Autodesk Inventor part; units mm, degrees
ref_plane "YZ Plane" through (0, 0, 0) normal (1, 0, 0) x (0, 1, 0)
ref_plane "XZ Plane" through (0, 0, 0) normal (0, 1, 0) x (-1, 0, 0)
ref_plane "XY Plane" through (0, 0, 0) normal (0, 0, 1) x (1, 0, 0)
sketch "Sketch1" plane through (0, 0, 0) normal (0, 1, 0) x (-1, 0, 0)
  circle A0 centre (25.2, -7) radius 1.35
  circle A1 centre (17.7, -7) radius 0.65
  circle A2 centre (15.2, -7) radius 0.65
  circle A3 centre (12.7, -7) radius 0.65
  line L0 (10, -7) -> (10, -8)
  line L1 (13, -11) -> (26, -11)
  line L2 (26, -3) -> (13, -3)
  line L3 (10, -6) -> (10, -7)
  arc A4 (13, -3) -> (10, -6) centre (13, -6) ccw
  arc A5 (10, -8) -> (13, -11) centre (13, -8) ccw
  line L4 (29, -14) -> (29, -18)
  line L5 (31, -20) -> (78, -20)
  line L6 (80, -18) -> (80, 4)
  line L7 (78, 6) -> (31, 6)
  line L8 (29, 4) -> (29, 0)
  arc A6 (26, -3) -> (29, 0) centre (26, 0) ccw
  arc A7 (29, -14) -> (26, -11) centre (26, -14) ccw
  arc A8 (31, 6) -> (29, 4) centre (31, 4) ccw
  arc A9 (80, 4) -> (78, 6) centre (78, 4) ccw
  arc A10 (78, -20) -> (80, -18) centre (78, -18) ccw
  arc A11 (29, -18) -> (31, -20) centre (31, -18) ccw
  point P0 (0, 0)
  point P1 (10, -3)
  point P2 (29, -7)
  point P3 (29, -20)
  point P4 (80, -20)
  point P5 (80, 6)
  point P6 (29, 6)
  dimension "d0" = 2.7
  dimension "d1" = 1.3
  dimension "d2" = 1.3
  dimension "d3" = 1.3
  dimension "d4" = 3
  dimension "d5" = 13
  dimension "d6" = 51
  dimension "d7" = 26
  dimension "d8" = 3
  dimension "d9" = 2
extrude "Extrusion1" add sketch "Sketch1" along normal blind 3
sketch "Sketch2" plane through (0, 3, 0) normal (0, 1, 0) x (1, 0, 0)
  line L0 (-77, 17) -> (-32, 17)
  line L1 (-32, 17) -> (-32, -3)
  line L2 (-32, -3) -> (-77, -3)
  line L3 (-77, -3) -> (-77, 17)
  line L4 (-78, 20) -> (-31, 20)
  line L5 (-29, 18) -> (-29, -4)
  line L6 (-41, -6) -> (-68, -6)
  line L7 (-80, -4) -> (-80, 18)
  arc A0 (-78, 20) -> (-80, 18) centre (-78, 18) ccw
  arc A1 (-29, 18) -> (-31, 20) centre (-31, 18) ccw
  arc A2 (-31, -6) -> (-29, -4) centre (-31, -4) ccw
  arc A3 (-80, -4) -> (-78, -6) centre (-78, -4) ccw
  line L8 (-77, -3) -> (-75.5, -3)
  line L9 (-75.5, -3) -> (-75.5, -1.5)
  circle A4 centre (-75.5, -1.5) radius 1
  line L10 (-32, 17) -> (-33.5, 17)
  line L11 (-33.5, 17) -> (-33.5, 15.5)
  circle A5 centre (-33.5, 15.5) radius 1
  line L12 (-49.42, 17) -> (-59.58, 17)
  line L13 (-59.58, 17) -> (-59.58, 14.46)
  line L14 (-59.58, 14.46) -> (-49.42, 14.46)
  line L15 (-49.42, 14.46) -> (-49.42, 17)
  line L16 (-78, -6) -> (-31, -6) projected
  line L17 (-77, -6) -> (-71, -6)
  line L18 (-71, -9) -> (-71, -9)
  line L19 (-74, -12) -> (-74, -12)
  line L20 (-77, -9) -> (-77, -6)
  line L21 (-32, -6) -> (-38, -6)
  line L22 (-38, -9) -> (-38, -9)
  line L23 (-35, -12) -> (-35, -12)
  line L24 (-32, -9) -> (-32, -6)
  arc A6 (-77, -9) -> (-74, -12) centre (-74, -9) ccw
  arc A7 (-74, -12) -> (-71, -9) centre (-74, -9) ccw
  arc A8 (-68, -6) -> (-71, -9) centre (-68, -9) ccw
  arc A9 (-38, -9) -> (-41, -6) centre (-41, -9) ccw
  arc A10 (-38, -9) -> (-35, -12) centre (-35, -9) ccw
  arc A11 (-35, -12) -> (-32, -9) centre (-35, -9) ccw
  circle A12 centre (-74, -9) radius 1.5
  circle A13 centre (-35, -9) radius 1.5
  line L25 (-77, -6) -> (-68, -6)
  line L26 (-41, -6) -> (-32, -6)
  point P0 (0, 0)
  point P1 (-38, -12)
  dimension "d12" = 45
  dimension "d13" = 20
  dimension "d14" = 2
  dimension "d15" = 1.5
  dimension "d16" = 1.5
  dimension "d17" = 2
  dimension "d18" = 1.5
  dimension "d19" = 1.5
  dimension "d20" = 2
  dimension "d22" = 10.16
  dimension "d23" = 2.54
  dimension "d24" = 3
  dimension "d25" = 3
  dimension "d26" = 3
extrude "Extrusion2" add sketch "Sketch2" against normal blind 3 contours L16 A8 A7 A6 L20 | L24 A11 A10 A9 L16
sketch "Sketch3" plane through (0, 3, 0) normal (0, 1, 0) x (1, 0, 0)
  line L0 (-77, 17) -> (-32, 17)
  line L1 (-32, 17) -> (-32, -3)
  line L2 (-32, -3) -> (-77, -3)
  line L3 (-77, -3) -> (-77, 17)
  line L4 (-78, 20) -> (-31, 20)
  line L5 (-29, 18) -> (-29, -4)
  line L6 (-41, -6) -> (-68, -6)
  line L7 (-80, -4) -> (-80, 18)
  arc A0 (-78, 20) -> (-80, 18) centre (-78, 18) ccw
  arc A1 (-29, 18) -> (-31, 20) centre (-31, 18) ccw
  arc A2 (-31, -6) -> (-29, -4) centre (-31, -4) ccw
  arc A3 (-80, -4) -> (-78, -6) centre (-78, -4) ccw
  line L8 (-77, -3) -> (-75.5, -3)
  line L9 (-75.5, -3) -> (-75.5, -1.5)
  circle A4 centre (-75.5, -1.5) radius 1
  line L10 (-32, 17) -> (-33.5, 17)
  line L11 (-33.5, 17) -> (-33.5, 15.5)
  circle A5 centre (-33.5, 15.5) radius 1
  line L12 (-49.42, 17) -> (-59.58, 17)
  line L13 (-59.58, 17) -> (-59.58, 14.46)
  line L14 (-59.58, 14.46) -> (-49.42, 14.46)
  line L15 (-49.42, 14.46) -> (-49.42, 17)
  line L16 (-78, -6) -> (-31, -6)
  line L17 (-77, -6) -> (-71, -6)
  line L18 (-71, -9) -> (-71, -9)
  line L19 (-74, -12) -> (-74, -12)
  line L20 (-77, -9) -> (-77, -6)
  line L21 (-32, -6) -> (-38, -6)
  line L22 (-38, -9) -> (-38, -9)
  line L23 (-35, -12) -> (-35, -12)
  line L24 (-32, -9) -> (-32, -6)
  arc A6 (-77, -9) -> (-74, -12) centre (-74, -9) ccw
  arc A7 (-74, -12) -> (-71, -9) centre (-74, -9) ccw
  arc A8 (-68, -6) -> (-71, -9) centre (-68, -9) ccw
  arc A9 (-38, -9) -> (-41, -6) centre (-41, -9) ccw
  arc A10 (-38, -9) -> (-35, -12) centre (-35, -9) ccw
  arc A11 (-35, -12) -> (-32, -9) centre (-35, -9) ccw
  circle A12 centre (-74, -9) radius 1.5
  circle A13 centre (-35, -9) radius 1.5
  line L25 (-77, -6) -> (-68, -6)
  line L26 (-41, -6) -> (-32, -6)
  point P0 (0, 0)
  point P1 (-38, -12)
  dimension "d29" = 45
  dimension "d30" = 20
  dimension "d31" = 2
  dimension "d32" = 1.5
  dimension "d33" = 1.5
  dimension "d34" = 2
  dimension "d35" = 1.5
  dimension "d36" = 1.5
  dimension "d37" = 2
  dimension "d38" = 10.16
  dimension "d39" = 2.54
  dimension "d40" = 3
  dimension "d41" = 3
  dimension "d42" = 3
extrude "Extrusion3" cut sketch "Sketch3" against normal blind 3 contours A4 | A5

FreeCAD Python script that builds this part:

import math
import FreeCAD as App
import Part
import Sketcher

doc = App.newDocument("Part")
body = doc.addObject("PartDesign::Body", "Body")

# Sketch on XZ plane
sketch1 = body.newObject("Sketcher::SketchObject", "Sketch")
sketch1.AttachmentSupport = (doc.getObject("XZ_Plane"), [""])
sketch1.MapMode = "FlatFace"
sketch1.addGeometry([
    Part.LineSegment(App.Vector(-10, -6, 0), App.Vector(-10, -8, 0)),  # 0
    Part.ArcOfCircle(Part.Circle(App.Vector(-13, -8, 0), App.Vector(0, 0, 1), 3), math.radians(-90), math.radians(0)),  # 1
    Part.LineSegment(App.Vector(-13, -11, 0), App.Vector(-26, -11, 0)),  # 2
    Part.ArcOfCircle(Part.Circle(App.Vector(-26, -14, 0), App.Vector(0, 0, 1), 3), math.radians(90), math.radians(180)),  # 3
    Part.LineSegment(App.Vector(-29, -14, 0), App.Vector(-29, -18, 0)),  # 4
    Part.ArcOfCircle(Part.Circle(App.Vector(-31, -18, 0), App.Vector(0, 0, 1), 2), math.radians(-90), math.radians(0)),  # 5
    Part.LineSegment(App.Vector(-31, -20, 0), App.Vector(-78, -20, 0)),  # 6
    Part.ArcOfCircle(Part.Circle(App.Vector(-78, -18, 0), App.Vector(0, 0, 1), 2), math.radians(180), math.radians(270)),  # 7
    Part.LineSegment(App.Vector(-80, -18, 0), App.Vector(-80, 4, 0)),  # 8
    Part.ArcOfCircle(Part.Circle(App.Vector(-78, 4, 0), App.Vector(0, 0, 1), 2), math.radians(90), math.radians(180)),  # 9
    Part.LineSegment(App.Vector(-78, 6, 0), App.Vector(-31, 6, 0)),  # 10
    Part.ArcOfCircle(Part.Circle(App.Vector(-31, 4, 0), App.Vector(0, 0, 1), 2), math.radians(0), math.radians(90)),  # 11
    Part.LineSegment(App.Vector(-29, 4, 0), App.Vector(-29, 0, 0)),  # 12
    Part.ArcOfCircle(Part.Circle(App.Vector(-26, 0, 0), App.Vector(0, 0, 1), 3), math.radians(180), math.radians(270)),  # 13
    Part.LineSegment(App.Vector(-26, -3, 0), App.Vector(-13, -3, 0)),  # 14
    Part.ArcOfCircle(Part.Circle(App.Vector(-13, -6, 0), App.Vector(0, 0, 1), 3), math.radians(0), math.radians(90)),  # 15
    Part.Circle(App.Vector(-12.7, -7, 0), App.Vector(0, 0, 1), 0.7),  # 16
    Part.Circle(App.Vector(-15.2, -7, 0), App.Vector(0, 0, 1), 0.7),  # 17
    Part.Circle(App.Vector(-17.7, -7, 0), App.Vector(0, 0, 1), 0.7),  # 18
    Part.Circle(App.Vector(-25.2, -7, 0), App.Vector(0, 0, 1), 1.4),  # 19
], False)
sketch1.addConstraint([
    Sketcher.Constraint("Tangent", 0, 2, 1, 2),
    Sketcher.Constraint("Tangent", 1, 1, 2, 1),
    Sketcher.Constraint("Tangent", 2, 2, 3, 1),
    Sketcher.Constraint("Tangent", 3, 2, 4, 1),
    Sketcher.Constraint("Tangent", 4, 2, 5, 2),
    Sketcher.Constraint("Tangent", 5, 1, 6, 1),
    Sketcher.Constraint("Tangent", 6, 2, 7, 2),
    Sketcher.Constraint("Tangent", 7, 1, 8, 1),
    Sketcher.Constraint("Tangent", 8, 2, 9, 2),
    Sketcher.Constraint("Tangent", 9, 1, 10, 1),
    Sketcher.Constraint("Tangent", 10, 2, 11, 2),
    Sketcher.Constraint("Tangent", 11, 1, 12, 1),
    Sketcher.Constraint("Tangent", 12, 2, 13, 1),
    Sketcher.Constraint("Tangent", 13, 2, 14, 1),
    Sketcher.Constraint("Tangent", 14, 2, 15, 2),
    Sketcher.Constraint("Tangent", 15, 1, 0, 1),
    Sketcher.Constraint("Vertical", 0),
    Sketcher.Constraint("Horizontal", 2),
    Sketcher.Constraint("Vertical", 4),
    Sketcher.Constraint("Horizontal", 6),
    Sketcher.Constraint("Vertical", 8),
    Sketcher.Constraint("Horizontal", 10),
    Sketcher.Constraint("Vertical", 12),
    Sketcher.Constraint("Horizontal", 14),
    Sketcher.Constraint("Equal", 1, 3),
    Sketcher.Constraint("Equal", 5, 7),
    Sketcher.Constraint("Equal", 7, 9),
    Sketcher.Constraint("Equal", 9, 11),
    Sketcher.Constraint("Equal", 3, 13),
    Sketcher.Constraint("Equal", 13, 15),
    Sketcher.Constraint("Equal", 16, 17),
    Sketcher.Constraint("Equal", 17, 18),
    Sketcher.Constraint("PointOnObject", 13, 3, -1),
    Sketcher.Constraint("Horizontal", 16, 3, 17, 3),
    Sketcher.Constraint("Horizontal", 17, 3, 18, 3),
    Sketcher.Constraint("Horizontal", 18, 3, 19, 3),
    Sketcher.Constraint("Vertical", 5, 3, 11, 3),
    Sketcher.Constraint("Equal", 4, 12),
    Sketcher.Constraint("Radius", 1, 3.0),
    Sketcher.Constraint("Radius", 5, 2.0),
    Sketcher.Constraint("Diameter", 16, 1.3),
    Sketcher.Constraint("Diameter", 19, 2.7),
    Sketcher.Constraint("DistanceX", 2, 2, 2, 1, 13.0),
    Sketcher.Constraint("DistanceY", 0, 2, 0, 1, 2.0),
    Sketcher.Constraint("DistanceX", 1, 3, -1, 1, 13.0),
    Sketcher.Constraint("DistanceY", 6, 2, 9, 1, 26.0),
    Sketcher.Constraint("DistanceY", 19, 3, 10, 2, 13.0),
    Sketcher.Constraint("DistanceX", 16, 3, 0, 2, 2.7),
    Sketcher.Constraint("DistanceX", 6, 2, 6, 1, 47.0),
    Sketcher.Constraint("DistanceX", 18, 3, 16, 3, 5.0),
    Sketcher.Constraint("DistanceX", 19, 3, 17, 3, 10.0),
    Sketcher.Constraint("DistanceX", 17, 3, -1, 1, 15.2),
])
pad1 = body.newObject("PartDesign::Pad", "Pad")
pad1.Profile = sketch1
pad1.Length = 3
pad1.Reversed = True

# Sketch on XZ plane
sketch2 = body.newObject("Sketcher::SketchObject", "Sketch001")
sketch2.AttachmentSupport = (doc.getObject("XZ_Plane"), [""])
sketch2.MapMode = "FlatFace"
sketch2.AttachmentOffset = App.Placement(App.Vector(0, 0, -3), App.Rotation())
sketch2.addGeometry([
    Part.LineSegment(App.Vector(-68, 6, 0), App.Vector(-77, 6, 0)),  # 0
    Part.LineSegment(App.Vector(-77, 6, 0), App.Vector(-77, 9, 0)),  # 1
    Part.ArcOfCircle(Part.Circle(App.Vector(-74, 9, 0), App.Vector(0, 0, 1), 3), math.radians(0), math.radians(180)),  # 2
    Part.ArcOfCircle(Part.Circle(App.Vector(-68, 9, 0), App.Vector(0, 0, 1), 3), math.radians(180), math.radians(270)),  # 3
    Part.Circle(App.Vector(-74, 9, 0), App.Vector(0, 0, 1), 1.5),  # 4
    Part.LineSegment(App.Vector(-32, 9, 0), App.Vector(-32, 6, 0)),  # 5
    Part.LineSegment(App.Vector(-32, 6, 0), App.Vector(-41, 6, 0)),  # 6
    Part.ArcOfCircle(Part.Circle(App.Vector(-41, 9, 0), App.Vector(0, 0, 1), 3), math.radians(-90), math.radians(0)),  # 7
    Part.ArcOfCircle(Part.Circle(App.Vector(-35, 9, 0), App.Vector(0, 0, 1), 3), math.radians(0), math.radians(180)),  # 8
    Part.Circle(App.Vector(-35, 9, 0), App.Vector(0, 0, 1), 1.5),  # 9
], False)
sketch2.addConstraint([
    Sketcher.Constraint("Coincident", 0, 2, 1, 1),
    Sketcher.Constraint("Tangent", 1, 2, 2, 2),
    Sketcher.Constraint("Tangent", 2, 1, 3, 1),
    Sketcher.Constraint("Tangent", 3, 2, 0, 1),
    Sketcher.Constraint("Coincident", 5, 2, 6, 1),
    Sketcher.Constraint("Tangent", 6, 2, 7, 1),
    Sketcher.Constraint("Tangent", 7, 2, 8, 2),
    Sketcher.Constraint("Tangent", 8, 1, 5, 1),
    Sketcher.Constraint("Horizontal", 0),
    Sketcher.Constraint("Vertical", 1),
    Sketcher.Constraint("Vertical", 5),
    Sketcher.Constraint("Horizontal", 6),
    Sketcher.Constraint("Coincident", 4, 3, 2, 3),
    Sketcher.Constraint("Coincident", 9, 3, 8, 3),
    Sketcher.Constraint("Equal", 2, 3),
    Sketcher.Constraint("Equal", 3, 7),
    Sketcher.Constraint("Equal", 7, 8),
    Sketcher.Constraint("Equal", 4, 9),
    Sketcher.Constraint("Horizontal", 2, 3, 3, 3),
    Sketcher.Constraint("Horizontal", 4, 3, 7, 3),
    Sketcher.Constraint("Horizontal", 7, 3, 8, 3),
    Sketcher.Constraint("Diameter", 4, 3.0),
    Sketcher.Constraint("Radius", 2, 3.0),
    Sketcher.Constraint("DistanceX", 2, 3, -1, 1, 74.0),
    Sketcher.Constraint("DistanceY", -1, 1, 2, 3, 9.0),
    Sketcher.Constraint("DistanceX", 7, 3, -1, 1, 41.0),
])
pad2 = body.newObject("PartDesign::Pad", "Pad001")
pad2.Profile = sketch2
pad2.Length = 3

# Sketch on XZ plane
sketch3 = body.newObject("Sketcher::SketchObject", "Sketch002")
sketch3.AttachmentSupport = (doc.getObject("XZ_Plane"), [""])
sketch3.MapMode = "FlatFace"
sketch3.AttachmentOffset = App.Placement(App.Vector(0, 0, -3), App.Rotation())
sketch3.addGeometry([
    Part.Circle(App.Vector(-75.5, 1.5, 0), App.Vector(0, 0, 1), 1),
    Part.Circle(App.Vector(-33.5, -15.5, 0), App.Vector(0, 0, 1), 1),
], False)
sketch3.addConstraint([
    Sketcher.Constraint("Equal", 0, 1),
    Sketcher.Constraint("Diameter", 0, 2.0),
    Sketcher.Constraint("DistanceY", -1, 1, 0, 3, 1.5),
    Sketcher.Constraint("DistanceX", 0, 3, 1, 3, 42.0),
    Sketcher.Constraint("DistanceY", 1, 3, 0, 3, 17.0),
    Sketcher.Constraint("DistanceX", 0, 3, -1, 1, 75.5),
])
pocket1 = body.newObject("PartDesign::Pocket", "Pocket")
pocket1.Profile = sketch3
pocket1.Length = 3
pocket1.Reversed = True

doc.recompute()
